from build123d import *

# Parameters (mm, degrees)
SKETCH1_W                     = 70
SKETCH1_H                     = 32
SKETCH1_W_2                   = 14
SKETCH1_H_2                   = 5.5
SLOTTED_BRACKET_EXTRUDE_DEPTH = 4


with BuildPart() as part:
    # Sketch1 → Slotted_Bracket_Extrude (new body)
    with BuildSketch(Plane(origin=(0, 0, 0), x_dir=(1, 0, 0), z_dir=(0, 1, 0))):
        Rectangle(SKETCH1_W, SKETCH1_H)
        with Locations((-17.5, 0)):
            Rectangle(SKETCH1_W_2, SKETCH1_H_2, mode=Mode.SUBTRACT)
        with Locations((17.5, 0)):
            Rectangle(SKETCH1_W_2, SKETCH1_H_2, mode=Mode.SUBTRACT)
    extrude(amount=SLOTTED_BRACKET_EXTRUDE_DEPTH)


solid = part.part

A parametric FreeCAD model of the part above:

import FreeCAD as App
import Part
import Sketcher
from FreeCAD import Vector
Q = App.Units.Quantity


def add_polygon(sketch, points):
    """Adds a closed chain of lines whose ends are joined by coincident constraints."""
    first, n = sketch.GeometryCount, len(points)
    for a, b in zip(points, points[1:] + points[:1]):
        sketch.addGeometry(Part.LineSegment(App.Vector(*a, 0), App.Vector(*b, 0)), False)
    for i in range(n):
        sketch.addConstraint(Sketcher.Constraint("Coincident", first + i, 2, first + (i + 1) % n, 1))

doc = App.newDocument("Part")
body = doc.addObject("PartDesign::Body", "Body")

# Sketch on XZ plane
sketch1 = doc.addObject("Sketcher::SketchObject", "Sketch")
body.addObject(sketch1)
sketch1.AttachmentSupport = (doc.XZ_Plane, [""])
sketch1.MapMode = "FlatFace"
add_polygon(sketch1, [(-35, -16), (-35, 16), (35, 16), (35, -16)])  # lines 0-3
add_polygon(sketch1, [(-10, 3), (-24, 3), (-24, -3), (-10, -3)])  # lines 4-7
add_polygon(sketch1, [(24, 3), (10, 3), (10, -3), (24, -3)])  # lines 8-11
sketch1.addConstraint([
    Sketcher.Constraint("Vertical", 0),
    Sketcher.Constraint("Horizontal", 1),
    Sketcher.Constraint("Vertical", 2),
    Sketcher.Constraint("Horizontal", 3),
    Sketcher.Constraint("Horizontal", 4),
    Sketcher.Constraint("Vertical", 5),
    Sketcher.Constraint("Horizontal", 6),
    Sketcher.Constraint("Vertical", 7),
    Sketcher.Constraint("Horizontal", 8),
    Sketcher.Constraint("Vertical", 9),
    Sketcher.Constraint("Horizontal", 10),
    Sketcher.Constraint("Vertical", 11),
    Sketcher.Constraint("Symmetric", 0, 2, 2, 2, -1, 1),
    Sketcher.Constraint("Symmetric", 6, 2, 8, 2, -1, 1),
    Sketcher.Constraint("Symmetric", 4, 2, 10, 2, -1, 1),
    Sketcher.Constraint("Horizontal", 7, 2, 8, 2),
    Sketcher.Constraint("DistanceX", 1, 1, 1, 2, Q("70 mm")),
    Sketcher.Constraint("DistanceX", 4, 2, 4, 1, Q("14 mm")),
    Sketcher.Constraint("DistanceY", 0, 1, 0, 2, Q("32 mm")),
    Sketcher.Constraint("DistanceY", 5, 2, 5, 1, Q("5.5 mm")),
    Sketcher.Constraint("DistanceX", 7, 2, 8, 2, Q("21 mm")),
])
pad1 = doc.addObject("PartDesign::Pad", "Pad")
body.addObject(pad1)
pad1.Profile = sketch1
pad1.Length = 4
pad1.Reversed = True

doc.recompute()
